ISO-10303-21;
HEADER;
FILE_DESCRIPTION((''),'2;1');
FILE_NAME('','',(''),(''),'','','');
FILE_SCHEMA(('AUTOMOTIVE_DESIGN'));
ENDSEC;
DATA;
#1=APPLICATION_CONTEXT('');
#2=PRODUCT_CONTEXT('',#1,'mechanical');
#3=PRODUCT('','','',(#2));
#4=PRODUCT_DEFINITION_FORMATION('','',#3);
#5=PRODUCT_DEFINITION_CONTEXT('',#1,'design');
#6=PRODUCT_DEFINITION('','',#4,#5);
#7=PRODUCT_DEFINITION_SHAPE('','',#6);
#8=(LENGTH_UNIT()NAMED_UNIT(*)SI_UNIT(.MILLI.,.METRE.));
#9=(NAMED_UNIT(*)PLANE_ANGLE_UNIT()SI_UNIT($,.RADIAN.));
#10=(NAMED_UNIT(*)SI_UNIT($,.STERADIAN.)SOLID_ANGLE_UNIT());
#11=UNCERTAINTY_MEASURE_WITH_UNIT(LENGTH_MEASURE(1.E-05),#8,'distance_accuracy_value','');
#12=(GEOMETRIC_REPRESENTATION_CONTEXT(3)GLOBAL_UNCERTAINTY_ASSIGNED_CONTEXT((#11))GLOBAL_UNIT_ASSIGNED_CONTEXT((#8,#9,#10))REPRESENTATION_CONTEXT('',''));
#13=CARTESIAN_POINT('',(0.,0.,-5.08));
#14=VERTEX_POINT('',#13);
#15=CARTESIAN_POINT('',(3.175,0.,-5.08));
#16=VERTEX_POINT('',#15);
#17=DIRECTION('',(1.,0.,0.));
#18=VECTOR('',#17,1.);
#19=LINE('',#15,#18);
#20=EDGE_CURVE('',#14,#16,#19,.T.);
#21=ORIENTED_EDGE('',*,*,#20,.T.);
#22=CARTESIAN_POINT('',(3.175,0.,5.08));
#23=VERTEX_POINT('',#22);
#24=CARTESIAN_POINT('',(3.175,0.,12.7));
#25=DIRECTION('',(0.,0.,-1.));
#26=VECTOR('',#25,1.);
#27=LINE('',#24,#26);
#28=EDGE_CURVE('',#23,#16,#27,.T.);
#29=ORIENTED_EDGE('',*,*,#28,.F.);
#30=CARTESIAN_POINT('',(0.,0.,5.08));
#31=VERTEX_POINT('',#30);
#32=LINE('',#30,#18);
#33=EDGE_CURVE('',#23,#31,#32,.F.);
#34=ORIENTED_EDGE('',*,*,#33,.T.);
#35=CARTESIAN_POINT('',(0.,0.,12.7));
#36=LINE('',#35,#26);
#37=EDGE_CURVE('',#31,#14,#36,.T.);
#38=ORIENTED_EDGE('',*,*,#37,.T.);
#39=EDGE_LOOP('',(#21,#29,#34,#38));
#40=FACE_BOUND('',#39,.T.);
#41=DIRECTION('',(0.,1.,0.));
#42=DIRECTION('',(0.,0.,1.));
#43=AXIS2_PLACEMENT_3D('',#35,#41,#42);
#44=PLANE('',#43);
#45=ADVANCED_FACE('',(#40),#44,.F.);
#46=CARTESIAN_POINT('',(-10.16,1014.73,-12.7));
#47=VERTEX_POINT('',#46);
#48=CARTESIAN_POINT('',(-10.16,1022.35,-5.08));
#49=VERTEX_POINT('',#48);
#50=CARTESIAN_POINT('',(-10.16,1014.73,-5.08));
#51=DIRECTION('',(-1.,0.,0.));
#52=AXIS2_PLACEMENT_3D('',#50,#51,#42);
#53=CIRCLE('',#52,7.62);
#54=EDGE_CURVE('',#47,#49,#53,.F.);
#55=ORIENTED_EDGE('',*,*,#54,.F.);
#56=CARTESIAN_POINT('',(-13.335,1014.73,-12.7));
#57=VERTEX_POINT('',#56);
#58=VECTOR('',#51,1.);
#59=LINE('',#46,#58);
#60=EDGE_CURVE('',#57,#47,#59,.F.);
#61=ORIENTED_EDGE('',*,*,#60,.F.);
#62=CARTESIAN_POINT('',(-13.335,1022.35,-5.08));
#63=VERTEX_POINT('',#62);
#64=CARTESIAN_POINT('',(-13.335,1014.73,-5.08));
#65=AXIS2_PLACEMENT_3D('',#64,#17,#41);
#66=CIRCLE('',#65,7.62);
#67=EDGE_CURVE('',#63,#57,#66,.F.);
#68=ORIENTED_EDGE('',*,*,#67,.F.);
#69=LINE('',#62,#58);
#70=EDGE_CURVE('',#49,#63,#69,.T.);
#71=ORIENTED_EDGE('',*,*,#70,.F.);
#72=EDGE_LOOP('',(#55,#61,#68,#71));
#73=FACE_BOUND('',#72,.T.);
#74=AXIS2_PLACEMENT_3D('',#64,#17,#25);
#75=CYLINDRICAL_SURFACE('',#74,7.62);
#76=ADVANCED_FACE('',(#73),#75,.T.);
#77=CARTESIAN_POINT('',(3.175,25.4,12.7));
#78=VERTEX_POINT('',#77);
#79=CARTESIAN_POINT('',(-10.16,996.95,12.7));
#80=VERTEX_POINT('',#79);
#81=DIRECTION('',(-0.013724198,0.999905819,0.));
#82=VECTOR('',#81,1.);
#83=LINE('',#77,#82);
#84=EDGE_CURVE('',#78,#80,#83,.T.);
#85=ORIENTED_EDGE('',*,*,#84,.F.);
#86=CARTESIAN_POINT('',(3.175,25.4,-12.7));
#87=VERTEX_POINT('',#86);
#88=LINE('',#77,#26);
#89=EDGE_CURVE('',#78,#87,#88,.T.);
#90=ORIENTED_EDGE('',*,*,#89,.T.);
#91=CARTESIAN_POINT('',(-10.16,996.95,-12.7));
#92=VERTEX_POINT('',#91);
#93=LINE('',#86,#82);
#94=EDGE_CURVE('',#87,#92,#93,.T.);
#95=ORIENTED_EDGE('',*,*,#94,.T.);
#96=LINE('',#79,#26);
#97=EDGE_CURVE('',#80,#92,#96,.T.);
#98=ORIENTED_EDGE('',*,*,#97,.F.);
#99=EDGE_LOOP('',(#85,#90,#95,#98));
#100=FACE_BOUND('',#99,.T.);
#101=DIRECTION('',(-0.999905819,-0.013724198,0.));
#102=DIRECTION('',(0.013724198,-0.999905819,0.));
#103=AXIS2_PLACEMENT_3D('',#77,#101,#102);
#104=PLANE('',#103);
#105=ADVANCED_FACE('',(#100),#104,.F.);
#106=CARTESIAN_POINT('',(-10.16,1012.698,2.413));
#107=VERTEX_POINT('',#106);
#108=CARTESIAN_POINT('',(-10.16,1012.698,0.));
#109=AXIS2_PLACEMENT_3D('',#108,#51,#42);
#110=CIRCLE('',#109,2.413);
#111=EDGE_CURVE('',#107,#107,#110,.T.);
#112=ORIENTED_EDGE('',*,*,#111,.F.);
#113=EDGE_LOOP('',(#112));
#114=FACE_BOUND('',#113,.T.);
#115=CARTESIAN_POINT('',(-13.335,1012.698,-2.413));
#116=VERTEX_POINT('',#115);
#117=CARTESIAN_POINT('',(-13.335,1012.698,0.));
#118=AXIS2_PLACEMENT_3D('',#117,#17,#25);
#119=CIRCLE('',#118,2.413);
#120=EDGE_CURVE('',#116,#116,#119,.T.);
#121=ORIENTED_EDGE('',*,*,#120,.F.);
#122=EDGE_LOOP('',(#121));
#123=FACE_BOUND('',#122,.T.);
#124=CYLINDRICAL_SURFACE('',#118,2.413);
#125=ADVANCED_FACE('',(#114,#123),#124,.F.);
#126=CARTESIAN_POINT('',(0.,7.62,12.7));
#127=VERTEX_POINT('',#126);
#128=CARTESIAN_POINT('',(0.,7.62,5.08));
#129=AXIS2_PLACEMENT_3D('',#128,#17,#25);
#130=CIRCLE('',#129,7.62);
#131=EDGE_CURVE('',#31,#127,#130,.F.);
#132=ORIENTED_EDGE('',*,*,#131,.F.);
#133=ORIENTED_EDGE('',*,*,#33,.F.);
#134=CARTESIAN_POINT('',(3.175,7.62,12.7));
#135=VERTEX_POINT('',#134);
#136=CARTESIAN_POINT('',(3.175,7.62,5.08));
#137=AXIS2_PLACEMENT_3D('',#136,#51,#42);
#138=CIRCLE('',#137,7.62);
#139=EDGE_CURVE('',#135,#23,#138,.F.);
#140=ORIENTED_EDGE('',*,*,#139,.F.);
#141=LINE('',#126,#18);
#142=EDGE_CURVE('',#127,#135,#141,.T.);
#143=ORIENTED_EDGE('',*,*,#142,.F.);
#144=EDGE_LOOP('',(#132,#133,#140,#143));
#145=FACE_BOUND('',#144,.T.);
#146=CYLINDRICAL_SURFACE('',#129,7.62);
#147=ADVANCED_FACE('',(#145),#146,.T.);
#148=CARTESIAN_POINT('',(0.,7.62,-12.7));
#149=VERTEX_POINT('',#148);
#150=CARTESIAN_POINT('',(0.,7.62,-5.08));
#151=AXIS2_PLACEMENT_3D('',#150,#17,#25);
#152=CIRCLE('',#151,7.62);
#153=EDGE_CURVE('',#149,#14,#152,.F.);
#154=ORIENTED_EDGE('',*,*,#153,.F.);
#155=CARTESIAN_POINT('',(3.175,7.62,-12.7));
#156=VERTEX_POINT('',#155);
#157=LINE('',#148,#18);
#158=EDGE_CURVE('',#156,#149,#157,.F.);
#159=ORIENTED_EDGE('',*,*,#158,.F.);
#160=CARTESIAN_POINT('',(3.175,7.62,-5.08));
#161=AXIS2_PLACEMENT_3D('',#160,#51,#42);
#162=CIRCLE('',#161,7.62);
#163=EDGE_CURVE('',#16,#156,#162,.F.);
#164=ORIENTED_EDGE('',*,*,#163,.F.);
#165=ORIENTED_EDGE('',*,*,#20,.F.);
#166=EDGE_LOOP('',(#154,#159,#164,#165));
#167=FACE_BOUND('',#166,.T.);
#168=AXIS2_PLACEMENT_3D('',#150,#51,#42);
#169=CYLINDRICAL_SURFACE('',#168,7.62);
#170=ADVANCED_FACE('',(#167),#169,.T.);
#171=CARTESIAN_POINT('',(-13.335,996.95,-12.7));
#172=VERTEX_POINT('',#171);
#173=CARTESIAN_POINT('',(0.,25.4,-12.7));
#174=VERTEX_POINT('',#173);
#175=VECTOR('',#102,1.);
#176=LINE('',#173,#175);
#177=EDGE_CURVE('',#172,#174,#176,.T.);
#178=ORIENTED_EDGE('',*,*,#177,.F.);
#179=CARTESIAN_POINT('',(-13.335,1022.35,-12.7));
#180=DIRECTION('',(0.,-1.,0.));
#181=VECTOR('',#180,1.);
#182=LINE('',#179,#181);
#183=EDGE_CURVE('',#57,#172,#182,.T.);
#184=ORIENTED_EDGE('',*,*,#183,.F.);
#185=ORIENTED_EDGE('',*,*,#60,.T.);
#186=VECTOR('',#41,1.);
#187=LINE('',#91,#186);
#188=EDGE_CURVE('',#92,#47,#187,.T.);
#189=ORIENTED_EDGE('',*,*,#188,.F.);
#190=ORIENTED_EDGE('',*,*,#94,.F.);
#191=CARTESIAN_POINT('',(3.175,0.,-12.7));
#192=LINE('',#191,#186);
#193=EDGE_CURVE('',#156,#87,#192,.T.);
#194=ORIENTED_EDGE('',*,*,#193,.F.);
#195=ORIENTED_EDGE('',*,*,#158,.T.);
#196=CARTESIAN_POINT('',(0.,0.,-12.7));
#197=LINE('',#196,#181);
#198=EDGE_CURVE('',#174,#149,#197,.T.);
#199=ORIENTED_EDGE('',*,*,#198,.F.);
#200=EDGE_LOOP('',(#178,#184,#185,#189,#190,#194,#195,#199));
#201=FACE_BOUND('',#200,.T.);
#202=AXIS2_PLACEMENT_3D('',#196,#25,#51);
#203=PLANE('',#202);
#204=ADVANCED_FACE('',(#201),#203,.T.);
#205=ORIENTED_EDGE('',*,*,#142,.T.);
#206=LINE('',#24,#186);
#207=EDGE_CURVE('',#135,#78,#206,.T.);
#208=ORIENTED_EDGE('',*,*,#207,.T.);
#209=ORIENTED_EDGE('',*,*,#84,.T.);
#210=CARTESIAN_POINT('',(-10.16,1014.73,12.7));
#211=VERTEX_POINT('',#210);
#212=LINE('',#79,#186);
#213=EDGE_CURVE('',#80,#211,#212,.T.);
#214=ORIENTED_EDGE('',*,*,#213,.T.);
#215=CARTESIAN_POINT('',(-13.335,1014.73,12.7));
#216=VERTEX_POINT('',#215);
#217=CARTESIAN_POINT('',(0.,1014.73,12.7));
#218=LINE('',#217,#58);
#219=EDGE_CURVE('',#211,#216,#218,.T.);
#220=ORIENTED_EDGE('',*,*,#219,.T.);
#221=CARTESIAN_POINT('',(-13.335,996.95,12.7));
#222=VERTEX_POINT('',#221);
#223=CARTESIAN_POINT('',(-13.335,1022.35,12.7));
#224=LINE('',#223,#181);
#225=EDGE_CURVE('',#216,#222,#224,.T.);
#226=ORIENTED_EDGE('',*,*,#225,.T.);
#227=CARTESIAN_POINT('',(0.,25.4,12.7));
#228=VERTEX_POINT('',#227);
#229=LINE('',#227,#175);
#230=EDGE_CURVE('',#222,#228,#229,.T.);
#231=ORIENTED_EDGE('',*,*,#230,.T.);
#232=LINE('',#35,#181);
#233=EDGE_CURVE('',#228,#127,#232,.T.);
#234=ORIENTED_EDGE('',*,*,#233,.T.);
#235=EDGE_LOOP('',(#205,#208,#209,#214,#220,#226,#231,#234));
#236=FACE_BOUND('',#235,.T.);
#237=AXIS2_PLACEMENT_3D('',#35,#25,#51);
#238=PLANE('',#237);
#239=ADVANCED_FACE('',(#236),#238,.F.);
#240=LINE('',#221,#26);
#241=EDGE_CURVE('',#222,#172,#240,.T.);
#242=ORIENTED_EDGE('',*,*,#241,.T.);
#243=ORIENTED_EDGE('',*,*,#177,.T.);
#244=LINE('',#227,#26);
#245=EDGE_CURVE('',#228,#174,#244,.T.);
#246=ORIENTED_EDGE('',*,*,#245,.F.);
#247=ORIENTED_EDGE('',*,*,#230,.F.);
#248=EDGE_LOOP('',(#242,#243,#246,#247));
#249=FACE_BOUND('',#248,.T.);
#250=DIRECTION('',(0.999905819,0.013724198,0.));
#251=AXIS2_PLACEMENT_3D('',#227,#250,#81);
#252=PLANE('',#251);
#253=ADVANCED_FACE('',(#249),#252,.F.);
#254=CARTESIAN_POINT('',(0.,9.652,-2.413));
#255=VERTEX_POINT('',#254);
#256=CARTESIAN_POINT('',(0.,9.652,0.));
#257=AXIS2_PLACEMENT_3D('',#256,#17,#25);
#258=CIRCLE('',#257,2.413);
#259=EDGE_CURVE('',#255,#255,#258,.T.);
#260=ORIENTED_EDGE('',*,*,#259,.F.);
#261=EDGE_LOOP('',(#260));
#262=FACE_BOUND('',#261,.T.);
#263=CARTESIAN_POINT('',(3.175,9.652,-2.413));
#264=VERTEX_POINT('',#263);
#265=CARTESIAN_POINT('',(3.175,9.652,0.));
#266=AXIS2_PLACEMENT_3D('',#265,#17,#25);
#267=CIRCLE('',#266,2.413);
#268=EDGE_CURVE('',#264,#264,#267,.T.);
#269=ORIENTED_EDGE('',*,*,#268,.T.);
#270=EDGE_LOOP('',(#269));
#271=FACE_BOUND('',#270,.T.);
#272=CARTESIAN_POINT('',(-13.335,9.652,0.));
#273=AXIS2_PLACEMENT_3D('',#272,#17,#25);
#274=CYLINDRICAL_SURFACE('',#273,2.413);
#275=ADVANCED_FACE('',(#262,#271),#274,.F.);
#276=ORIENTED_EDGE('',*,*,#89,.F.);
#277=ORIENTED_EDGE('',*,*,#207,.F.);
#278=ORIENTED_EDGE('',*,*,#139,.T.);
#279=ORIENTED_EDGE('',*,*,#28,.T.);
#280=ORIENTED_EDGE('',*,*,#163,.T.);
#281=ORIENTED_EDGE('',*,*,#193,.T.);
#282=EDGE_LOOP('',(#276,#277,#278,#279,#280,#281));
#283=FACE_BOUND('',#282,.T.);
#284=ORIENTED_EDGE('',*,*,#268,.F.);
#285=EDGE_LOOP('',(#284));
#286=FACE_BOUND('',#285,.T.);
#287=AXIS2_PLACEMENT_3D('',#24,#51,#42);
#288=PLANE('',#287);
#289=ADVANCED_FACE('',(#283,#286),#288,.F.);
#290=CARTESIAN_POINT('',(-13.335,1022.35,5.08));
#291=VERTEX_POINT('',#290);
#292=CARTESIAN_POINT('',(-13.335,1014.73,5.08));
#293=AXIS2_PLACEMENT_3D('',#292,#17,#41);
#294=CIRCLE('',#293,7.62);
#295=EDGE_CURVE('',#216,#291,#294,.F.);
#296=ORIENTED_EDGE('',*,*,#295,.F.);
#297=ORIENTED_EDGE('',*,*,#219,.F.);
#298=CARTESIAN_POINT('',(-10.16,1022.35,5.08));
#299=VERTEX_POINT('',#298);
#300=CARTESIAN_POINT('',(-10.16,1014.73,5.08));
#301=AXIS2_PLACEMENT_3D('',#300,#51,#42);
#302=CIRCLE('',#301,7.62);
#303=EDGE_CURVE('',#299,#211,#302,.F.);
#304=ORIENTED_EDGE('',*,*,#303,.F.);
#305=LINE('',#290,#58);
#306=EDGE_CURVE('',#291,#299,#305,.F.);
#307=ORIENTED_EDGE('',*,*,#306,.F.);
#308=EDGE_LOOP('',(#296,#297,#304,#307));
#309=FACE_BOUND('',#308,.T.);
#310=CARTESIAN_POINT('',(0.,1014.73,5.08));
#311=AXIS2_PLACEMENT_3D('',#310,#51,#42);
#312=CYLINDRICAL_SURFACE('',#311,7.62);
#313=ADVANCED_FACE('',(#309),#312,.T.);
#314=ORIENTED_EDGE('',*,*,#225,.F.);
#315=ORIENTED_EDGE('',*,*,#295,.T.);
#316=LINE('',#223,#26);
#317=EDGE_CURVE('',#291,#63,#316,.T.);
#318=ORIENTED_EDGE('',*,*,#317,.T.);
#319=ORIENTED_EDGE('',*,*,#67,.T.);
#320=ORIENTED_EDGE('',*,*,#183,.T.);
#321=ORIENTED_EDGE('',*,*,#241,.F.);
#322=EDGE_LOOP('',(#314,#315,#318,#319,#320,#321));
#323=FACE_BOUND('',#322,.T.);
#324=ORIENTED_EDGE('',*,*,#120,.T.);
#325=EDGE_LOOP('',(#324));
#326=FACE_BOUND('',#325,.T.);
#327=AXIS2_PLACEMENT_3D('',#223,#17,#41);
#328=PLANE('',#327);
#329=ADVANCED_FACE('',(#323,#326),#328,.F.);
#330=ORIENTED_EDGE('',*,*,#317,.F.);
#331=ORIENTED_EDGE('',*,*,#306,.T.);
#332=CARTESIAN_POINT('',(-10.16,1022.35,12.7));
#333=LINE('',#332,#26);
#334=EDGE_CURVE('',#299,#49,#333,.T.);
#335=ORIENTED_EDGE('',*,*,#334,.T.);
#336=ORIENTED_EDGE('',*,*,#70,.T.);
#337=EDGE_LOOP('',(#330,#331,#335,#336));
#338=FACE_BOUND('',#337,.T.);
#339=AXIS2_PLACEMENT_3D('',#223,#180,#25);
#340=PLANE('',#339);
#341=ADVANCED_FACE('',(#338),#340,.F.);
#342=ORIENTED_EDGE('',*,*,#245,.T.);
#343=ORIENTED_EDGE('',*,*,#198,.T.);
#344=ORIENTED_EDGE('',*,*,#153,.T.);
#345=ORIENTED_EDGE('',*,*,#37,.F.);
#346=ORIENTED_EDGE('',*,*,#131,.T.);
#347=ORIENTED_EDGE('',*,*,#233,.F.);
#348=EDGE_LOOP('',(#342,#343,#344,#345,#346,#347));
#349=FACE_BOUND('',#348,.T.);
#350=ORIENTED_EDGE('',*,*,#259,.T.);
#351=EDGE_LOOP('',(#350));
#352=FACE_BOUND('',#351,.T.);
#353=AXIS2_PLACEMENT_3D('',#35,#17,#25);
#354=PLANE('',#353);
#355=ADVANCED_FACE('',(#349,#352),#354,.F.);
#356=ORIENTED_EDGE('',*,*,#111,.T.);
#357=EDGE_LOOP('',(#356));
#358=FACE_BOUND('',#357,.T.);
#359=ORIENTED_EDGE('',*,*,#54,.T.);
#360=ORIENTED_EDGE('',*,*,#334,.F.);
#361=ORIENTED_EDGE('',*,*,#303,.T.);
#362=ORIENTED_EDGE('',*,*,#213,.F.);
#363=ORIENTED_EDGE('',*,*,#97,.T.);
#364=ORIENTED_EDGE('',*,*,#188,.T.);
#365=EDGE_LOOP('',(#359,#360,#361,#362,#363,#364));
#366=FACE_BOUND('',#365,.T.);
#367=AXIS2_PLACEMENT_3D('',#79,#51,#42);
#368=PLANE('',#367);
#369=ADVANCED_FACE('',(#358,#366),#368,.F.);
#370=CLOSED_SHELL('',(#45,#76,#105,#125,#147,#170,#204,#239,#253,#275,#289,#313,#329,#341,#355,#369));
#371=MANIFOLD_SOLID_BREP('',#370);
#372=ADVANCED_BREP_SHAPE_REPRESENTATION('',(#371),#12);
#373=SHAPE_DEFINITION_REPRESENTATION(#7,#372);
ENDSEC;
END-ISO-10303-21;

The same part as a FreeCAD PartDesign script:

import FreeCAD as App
import Part
import Sketcher

V = App.Vector
Q = App.Units.Quantity


def edges_at(feature, points):
    """Names of the edges that pass closest to the given points."""
    edges = feature.Shape.Edges
    near = lambda p: min(range(len(edges)), key=lambda i: edges[i].distToShape(Part.Vertex(*p))[0])
    return sorted({f"Edge{near(p) + 1}" for p in points})

doc = App.newDocument("Part")
body = doc.addObject("PartDesign::Body", "Body")

# Sketch on XY plane
sketch1 = doc.addObject("Sketcher::SketchObject", "Sketch")
body.addObject(sketch1)
sketch1.AttachmentSupport = (doc.XY_Plane, [""])
sketch1.MapMode = "FlatFace"
sketch1.addGeometry(Part.LineSegment(V(0, 0, 0), V(3.2, 0, 0)), False)
sketch1.addGeometry(Part.LineSegment(V(3.2, 0, 0), V(3.2, 25.4, 0)), False)
sketch1.addGeometry(Part.LineSegment(V(3.2, 25.4, 0), V(-10.2, 997, 0)), False)
sketch1.addGeometry(Part.LineSegment(V(-10.2, 997, 0), V(-10.2, 1022.4, 0)), False)
sketch1.addGeometry(Part.LineSegment(V(-10.2, 1022.4, 0), V(-13.3, 1022.4, 0)), False)
sketch1.addGeometry(Part.LineSegment(V(-13.3, 1022.4, 0), V(-13.3, 997, 0)), False)
sketch1.addGeometry(Part.LineSegment(V(-13.3, 997, 0), V(0, 25.4, 0)), False)
sketch1.addGeometry(Part.LineSegment(V(0, 25.4, 0), V(0, 0, 0)), False)
sketch1.addConstraint(Sketcher.Constraint("Coincident", 0, 2, 1, 1))
sketch1.addConstraint(Sketcher.Constraint("Coincident", 1, 2, 2, 1))
sketch1.addConstraint(Sketcher.Constraint("Coincident", 2, 2, 3, 1))
sketch1.addConstraint(Sketcher.Constraint("Coincident", 3, 2, 4, 1))
sketch1.addConstraint(Sketcher.Constraint("Coincident", 4, 2, 5, 1))
sketch1.addConstraint(Sketcher.Constraint("Coincident", 5, 2, 6, 1))
sketch1.addConstraint(Sketcher.Constraint("Coincident", 6, 2, 7, 1))
sketch1.addConstraint(Sketcher.Constraint("Coincident", 7, 2, 0, 1))
sketch1.addConstraint(Sketcher.Constraint("Horizontal", 0))
sketch1.addConstraint(Sketcher.Constraint("Vertical", 1))
sketch1.addConstraint(Sketcher.Constraint("Vertical", 3))
sketch1.addConstraint(Sketcher.Constraint("Horizontal", 4))
sketch1.addConstraint(Sketcher.Constraint("Vertical", 5))
sketch1.addConstraint(Sketcher.Constraint("Vertical", 7))
sketch1.addConstraint(Sketcher.Constraint("Coincident", 7, 2, -1, 1))
sketch1.addConstraint(Sketcher.Constraint("Parallel", 2, 6))
sketch1.addConstraint(Sketcher.Constraint("Horizontal", 2, 2, 5, 2))
sketch1.addConstraint(Sketcher.Constraint("Horizontal", 1, 2, 6, 2))
sketch1.addConstraint(Sketcher.Constraint("Equal", 1, 3))
sketch1.addConstraint(Sketcher.Constraint("DistanceY", 1, 1, 1, 2, Q("1 in")))
sketch1.addConstraint(Sketcher.Constraint("DistanceX", 2, 2, -1, 1, Q("0.4 in")))
sketch1.addConstraint(Sketcher.Constraint("DistanceX", 0, 1, 0, 2, Q("0.125 in")))
sketch1.addConstraint(Sketcher.Constraint("DistanceY", -1, 1, 2, 2, Q("39.25 in")))
pad1 = doc.addObject("PartDesign::Pad", "Pad")
body.addObject(pad1)
pad1.Profile = sketch1
pad1.Length = Q("1 in")
pad1.Midplane = True
doc.recompute()

fillet = doc.addObject("PartDesign::Fillet", "Fillet")
body.addObject(fillet)
fillet.Base = (pad1, edges_at(pad1, [
    (1.587, 0, -12.7),
    (-11.748, 1022.35, 12.7),
    (1.587, 0, 12.7),
    (-11.748, 1022.35, -12.7),
]))
fillet.Radius = Q("0.3 in")

# Sketch on YZ plane
sketch2 = doc.addObject("Sketcher::SketchObject", "Sketch001")
body.addObject(sketch2)
sketch2.AttachmentSupport = (doc.YZ_Plane, [""])
sketch2.MapMode = "FlatFace"
sketch2.AttachmentOffset = App.Placement(V(0, 0, -0.4 * 25.4), App.Rotation())
sketch2.addGeometry(Part.Circle(V(1012.7, 0, 0), V(0, 0, 1), 2.4), False)
sketch2.addGeometry(Part.Circle(V(9.7, 0, 0), V(0, 0, 1), 2.4), False)
sketch2.addConstraint(Sketcher.Constraint("Equal", 0, 1))
sketch2.addConstraint(Sketcher.Constraint("PointOnObject", 0, 3, -1))
sketch2.addConstraint(Sketcher.Constraint("PointOnObject", 1, 3, -1))
sketch2.addConstraint(Sketcher.Constraint("Diameter", 0, Q("0.19 in")))
sketch2.addConstraint(Sketcher.Constraint("DistanceX", -1, 1, 0, 3, Q("39.87 in")))
sketch2.addConstraint(Sketcher.Constraint("DistanceX", -1, 1, 1, 3, Q("0.38 in")))
pocket1 = doc.addObject("PartDesign::Pocket", "Pocket")
body.addObject(pocket1)
pocket1.Profile = sketch2
pocket1.Type = "ThroughAll"
pocket1.Midplane = True

doc.recompute()
